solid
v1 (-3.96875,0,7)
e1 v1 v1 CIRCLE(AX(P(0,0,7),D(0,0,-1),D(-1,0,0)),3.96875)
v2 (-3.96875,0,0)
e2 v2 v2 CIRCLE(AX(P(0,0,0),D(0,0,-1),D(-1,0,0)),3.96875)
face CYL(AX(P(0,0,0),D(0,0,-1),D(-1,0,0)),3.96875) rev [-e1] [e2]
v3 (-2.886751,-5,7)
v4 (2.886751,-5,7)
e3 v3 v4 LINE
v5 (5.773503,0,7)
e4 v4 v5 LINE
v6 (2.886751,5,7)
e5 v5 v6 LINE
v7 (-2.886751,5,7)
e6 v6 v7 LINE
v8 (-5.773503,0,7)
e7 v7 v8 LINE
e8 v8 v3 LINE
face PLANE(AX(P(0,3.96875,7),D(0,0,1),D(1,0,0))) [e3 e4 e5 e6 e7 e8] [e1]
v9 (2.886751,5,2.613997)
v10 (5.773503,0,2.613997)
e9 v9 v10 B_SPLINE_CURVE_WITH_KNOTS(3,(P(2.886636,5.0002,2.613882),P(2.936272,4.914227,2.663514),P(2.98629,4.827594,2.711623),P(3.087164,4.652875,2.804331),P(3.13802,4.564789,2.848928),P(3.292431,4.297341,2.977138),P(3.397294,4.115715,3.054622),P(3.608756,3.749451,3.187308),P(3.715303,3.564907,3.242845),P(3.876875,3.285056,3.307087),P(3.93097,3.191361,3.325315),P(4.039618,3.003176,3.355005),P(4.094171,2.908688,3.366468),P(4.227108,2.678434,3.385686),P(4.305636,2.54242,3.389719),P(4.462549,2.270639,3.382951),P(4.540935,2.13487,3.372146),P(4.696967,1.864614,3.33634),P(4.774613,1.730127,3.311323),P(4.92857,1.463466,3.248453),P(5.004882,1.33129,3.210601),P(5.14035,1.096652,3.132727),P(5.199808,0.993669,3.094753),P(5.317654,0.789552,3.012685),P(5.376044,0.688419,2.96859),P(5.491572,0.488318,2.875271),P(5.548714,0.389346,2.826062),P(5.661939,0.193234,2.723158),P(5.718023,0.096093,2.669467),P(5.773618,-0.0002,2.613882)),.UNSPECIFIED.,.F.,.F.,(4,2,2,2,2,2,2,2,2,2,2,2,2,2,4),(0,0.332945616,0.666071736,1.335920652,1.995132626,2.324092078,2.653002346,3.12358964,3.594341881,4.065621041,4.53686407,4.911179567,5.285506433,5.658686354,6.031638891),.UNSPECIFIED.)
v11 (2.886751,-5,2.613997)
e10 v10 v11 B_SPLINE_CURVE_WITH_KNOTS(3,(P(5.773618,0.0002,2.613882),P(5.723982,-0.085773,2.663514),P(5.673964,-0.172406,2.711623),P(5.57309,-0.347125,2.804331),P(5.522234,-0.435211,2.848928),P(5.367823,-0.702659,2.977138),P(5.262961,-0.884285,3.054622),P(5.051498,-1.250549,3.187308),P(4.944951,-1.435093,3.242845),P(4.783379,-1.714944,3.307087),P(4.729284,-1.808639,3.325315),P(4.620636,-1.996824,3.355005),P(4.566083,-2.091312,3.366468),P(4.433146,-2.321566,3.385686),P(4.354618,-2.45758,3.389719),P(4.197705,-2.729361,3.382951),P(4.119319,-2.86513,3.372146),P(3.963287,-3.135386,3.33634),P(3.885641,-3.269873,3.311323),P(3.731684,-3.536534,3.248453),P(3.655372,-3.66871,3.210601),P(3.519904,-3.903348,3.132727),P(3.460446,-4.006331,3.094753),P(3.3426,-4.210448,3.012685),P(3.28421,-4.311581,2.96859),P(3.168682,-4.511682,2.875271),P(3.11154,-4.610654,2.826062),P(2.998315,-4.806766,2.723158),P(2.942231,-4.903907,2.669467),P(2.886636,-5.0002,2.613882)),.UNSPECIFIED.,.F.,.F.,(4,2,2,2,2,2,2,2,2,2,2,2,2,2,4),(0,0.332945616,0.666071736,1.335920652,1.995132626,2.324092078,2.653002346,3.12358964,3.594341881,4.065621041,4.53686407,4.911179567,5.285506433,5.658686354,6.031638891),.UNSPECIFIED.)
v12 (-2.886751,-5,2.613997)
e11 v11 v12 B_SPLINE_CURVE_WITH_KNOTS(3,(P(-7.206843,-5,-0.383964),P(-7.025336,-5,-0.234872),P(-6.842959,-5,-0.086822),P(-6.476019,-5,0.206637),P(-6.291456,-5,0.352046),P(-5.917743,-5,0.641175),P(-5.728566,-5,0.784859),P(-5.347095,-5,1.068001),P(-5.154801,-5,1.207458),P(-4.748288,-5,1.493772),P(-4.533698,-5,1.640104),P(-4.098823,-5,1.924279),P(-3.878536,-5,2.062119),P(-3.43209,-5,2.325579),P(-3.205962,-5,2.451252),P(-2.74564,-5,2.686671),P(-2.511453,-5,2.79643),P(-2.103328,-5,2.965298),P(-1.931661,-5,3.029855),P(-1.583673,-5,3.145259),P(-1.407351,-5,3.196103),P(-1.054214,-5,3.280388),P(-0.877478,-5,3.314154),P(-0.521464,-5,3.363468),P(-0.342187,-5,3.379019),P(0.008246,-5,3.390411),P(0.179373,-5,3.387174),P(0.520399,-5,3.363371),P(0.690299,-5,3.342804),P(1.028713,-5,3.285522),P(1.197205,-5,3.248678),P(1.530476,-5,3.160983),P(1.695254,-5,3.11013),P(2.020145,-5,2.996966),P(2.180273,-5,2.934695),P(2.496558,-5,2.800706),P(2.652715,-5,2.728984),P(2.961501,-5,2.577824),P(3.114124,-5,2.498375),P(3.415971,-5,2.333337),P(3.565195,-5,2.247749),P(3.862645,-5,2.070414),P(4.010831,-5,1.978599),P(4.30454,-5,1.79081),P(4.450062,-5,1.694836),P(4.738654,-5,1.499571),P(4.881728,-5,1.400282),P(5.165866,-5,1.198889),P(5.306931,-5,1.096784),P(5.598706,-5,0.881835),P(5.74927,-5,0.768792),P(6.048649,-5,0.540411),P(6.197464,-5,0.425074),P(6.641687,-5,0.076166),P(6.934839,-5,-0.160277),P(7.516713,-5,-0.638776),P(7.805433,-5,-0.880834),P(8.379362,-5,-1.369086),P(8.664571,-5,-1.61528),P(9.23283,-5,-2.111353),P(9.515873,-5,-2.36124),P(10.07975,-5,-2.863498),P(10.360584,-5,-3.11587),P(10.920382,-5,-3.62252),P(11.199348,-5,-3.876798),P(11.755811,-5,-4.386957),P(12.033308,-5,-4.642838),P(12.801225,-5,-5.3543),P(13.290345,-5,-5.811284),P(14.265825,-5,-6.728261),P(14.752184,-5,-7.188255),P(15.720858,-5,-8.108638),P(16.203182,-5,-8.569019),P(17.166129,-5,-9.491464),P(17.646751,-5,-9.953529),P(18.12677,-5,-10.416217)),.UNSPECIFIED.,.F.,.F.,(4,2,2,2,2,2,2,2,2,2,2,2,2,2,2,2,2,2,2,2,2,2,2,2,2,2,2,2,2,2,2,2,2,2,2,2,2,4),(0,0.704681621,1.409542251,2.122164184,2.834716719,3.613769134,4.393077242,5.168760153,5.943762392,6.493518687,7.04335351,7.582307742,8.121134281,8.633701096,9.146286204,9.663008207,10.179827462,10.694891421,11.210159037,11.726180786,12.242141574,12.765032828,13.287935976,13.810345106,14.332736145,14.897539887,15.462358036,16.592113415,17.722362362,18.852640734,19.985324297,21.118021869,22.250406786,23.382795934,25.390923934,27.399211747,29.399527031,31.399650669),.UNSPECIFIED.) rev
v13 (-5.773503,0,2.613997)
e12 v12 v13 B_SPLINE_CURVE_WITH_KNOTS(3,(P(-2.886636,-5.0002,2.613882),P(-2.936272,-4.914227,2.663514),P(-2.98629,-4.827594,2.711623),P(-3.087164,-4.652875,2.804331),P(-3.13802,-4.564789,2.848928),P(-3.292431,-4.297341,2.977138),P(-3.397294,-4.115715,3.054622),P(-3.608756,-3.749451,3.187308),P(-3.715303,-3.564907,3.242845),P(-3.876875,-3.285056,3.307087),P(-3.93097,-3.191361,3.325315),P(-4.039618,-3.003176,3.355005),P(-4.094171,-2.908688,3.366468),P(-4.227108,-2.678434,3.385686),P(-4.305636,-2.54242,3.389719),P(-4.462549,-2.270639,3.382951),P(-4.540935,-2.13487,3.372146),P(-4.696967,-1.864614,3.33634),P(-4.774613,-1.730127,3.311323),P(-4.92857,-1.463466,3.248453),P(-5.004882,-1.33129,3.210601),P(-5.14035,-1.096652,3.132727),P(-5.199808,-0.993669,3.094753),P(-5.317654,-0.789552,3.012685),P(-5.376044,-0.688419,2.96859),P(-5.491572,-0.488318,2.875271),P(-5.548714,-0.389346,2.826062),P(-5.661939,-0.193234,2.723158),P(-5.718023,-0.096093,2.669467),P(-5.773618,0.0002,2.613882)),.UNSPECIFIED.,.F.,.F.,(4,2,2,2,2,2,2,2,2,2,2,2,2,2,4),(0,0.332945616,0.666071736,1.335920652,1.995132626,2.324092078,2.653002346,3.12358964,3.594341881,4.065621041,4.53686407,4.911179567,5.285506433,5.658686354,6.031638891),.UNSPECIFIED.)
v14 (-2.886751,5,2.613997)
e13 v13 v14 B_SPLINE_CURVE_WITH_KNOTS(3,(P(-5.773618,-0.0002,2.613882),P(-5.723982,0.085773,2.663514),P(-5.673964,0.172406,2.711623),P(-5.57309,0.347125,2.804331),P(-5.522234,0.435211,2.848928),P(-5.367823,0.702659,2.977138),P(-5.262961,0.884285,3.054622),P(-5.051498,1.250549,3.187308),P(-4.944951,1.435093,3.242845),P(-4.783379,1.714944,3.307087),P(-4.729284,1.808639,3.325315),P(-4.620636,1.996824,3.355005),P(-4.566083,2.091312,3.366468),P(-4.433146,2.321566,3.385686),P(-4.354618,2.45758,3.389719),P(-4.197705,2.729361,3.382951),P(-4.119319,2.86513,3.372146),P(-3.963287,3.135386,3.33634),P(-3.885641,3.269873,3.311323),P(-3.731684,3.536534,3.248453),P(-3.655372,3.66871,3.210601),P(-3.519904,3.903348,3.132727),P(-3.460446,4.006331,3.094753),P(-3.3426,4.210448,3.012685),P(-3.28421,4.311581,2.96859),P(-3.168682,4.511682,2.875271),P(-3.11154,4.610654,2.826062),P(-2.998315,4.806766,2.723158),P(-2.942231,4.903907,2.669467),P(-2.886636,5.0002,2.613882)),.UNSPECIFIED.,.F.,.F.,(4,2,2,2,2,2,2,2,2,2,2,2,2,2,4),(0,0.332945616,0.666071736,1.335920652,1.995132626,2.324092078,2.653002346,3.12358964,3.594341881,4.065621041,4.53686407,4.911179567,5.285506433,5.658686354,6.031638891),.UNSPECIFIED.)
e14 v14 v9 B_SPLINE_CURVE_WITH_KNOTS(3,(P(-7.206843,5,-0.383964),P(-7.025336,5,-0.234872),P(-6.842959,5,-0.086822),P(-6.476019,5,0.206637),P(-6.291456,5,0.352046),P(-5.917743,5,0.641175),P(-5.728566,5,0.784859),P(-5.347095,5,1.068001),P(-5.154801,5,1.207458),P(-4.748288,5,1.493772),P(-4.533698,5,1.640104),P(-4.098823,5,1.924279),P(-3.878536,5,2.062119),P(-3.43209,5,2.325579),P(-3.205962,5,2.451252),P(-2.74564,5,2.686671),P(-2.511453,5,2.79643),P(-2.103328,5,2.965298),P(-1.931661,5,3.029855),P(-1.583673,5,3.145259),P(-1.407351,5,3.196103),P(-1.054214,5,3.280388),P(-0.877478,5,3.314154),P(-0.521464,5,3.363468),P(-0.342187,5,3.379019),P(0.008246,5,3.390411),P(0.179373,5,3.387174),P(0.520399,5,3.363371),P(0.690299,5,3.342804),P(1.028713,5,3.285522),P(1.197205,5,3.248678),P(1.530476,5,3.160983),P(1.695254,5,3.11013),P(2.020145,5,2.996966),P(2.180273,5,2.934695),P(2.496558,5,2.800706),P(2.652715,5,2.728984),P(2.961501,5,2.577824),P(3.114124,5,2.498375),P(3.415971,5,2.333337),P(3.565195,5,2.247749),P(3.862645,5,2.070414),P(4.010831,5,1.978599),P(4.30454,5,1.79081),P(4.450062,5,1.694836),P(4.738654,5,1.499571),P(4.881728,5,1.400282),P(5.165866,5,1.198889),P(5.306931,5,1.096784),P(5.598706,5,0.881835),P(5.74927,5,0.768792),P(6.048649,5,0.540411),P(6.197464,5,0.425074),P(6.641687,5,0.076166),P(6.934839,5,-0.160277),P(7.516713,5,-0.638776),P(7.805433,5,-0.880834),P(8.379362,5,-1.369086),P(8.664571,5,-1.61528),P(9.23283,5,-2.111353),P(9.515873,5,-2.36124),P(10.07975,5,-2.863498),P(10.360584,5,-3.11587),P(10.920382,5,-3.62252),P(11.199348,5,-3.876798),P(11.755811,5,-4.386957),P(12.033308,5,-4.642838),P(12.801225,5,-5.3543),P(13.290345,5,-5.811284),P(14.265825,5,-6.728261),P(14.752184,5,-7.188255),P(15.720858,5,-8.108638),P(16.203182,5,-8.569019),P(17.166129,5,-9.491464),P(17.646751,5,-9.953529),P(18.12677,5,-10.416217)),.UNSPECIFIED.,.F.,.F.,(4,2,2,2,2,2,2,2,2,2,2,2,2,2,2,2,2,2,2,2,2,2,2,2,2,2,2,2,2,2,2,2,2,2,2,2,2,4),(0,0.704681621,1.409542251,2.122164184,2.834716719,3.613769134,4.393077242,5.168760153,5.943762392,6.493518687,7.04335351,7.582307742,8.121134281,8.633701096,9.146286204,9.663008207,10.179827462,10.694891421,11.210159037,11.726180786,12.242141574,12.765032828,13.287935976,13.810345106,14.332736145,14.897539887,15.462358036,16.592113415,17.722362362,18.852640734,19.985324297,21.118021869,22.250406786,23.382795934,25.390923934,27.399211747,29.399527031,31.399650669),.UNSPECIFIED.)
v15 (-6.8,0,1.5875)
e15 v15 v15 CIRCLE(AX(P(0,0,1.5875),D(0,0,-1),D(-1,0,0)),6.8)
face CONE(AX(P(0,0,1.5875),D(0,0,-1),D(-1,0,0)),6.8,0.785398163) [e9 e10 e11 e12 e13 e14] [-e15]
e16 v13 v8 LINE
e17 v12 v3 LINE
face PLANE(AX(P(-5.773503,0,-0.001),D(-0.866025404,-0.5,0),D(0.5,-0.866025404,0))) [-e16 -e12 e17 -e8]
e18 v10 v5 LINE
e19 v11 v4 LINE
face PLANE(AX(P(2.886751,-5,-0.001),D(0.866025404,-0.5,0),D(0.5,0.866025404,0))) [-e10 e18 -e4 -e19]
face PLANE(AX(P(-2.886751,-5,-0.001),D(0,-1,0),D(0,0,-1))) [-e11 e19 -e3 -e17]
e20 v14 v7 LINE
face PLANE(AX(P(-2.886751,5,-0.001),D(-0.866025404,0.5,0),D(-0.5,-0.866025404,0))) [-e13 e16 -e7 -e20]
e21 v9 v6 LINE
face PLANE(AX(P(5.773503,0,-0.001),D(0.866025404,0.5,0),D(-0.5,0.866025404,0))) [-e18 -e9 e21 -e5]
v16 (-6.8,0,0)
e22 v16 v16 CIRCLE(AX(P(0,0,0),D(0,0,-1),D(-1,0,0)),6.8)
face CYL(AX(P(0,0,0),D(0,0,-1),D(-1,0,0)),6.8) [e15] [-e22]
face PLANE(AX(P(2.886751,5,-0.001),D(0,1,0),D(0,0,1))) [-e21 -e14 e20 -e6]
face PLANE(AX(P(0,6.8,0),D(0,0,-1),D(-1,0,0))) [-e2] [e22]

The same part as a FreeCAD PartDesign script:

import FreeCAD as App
import Part
import Sketcher
Q = App.Units.Quantity


def add_polygon(sketch, points):
    """Adds a closed chain of lines whose ends are joined by coincident constraints."""
    first, n = sketch.GeometryCount, len(points)
    for a, b in zip(points, points[1:] + points[:1]):
        sketch.addGeometry(Part.LineSegment(App.Vector(*a, 0), App.Vector(*b, 0)), False)
    for i in range(n):
        sketch.addConstraint(Sketcher.Constraint("Coincident", first + i, 2, first + (i + 1) % n, 1))

doc = App.newDocument("Part")
body = doc.addObject("PartDesign::Body", "Body")

sketch1 = doc.addObject("Sketcher::SketchObject", "Sketch")
body.addObject(sketch1)
sketch1.AttachmentSupport = (doc.YZ_Plane, [""])
sketch1.MapMode = "FlatFace"
add_polygon(sketch1, [(3.96875, 7), (3.96875, 0), (6.8, 0), (6.8, 1.5875), (4.7625, 3.625), (4.7625, 7)])
sketch1.addConstraint([
    Sketcher.Constraint("Vertical", 0),
    Sketcher.Constraint("Horizontal", 1),
    Sketcher.Constraint("Vertical", 2),
    Sketcher.Constraint("Vertical", 4),
    Sketcher.Constraint("Horizontal", 5),
    Sketcher.Constraint("PointOnObject", 0, 2, -1),
    Sketcher.Constraint("Angle", 3, Q("135 deg")),
    Sketcher.Constraint("DistanceX", 5, 2, 5, 1, Q("0.03125 in")),
    Sketcher.Constraint("DistanceY", 2, 1, 2, 2, Q("0.0625 in")),
    Sketcher.Constraint("DistanceX", -1, 1, 0, 2, Q("0.15625 in")),
    Sketcher.Constraint("DistanceY", 0, 2, 0, 1, 7.0),
    Sketcher.Constraint("DistanceY", 4, 1, 4, 2, 3.375),
])
revolution = doc.addObject("PartDesign::Revolution", "Revolution")
body.addObject(revolution)
revolution.Profile = sketch1
revolution.ReferenceAxis = (sketch1, ["V_Axis"])
revolution.Angle = 360

sketch2 = doc.addObject("Sketcher::SketchObject", "Sketch001")
body.addObject(sketch2)
sketch2.AttachmentSupport = (doc.XY_Plane, [""])
sketch2.MapMode = "FlatFace"
sketch2.AttachmentOffset = App.Placement(App.Vector(0, 0, 7), App.Rotation())
add_polygon(sketch2, [(-2.886751, 5), (-5.773503, 0), (-2.886751, -5), (2.886751, -5), (5.773503, 0), (2.886751, 5)])
sketch2.addGeometry(Part.Circle(App.Vector(0, 0, 0), App.Vector(0, 0, 1), 3.96875), False)
sketch2.addConstraint([
    Sketcher.Constraint("Horizontal", 2),
    Sketcher.Constraint("Horizontal", 5),
    Sketcher.Constraint("Coincident", 6, 3, -1, 1),
    Sketcher.Constraint("Symmetric", 0, 2, 3, 2, -1, 1),
    Sketcher.Constraint("Symmetric", 1, 2, 4, 2, -1, 1),
    Sketcher.Constraint("PointOnObject", 0, 2, -1),
    Sketcher.Constraint("Parallel", 0, 3),
    Sketcher.Constraint("Vertical", 2, 2, 4, 2),
    Sketcher.Constraint("Diameter", 6, Q("0.3125 in")),
    Sketcher.Constraint("Angle", 0, Q("-120 deg")),
    Sketcher.Constraint("DistanceY", 1, 2, -1, 1, 5.0),
    Sketcher.Constraint("DistanceX", 2, 1, 2, 2, 5.773503),
])
pad1 = doc.addObject("PartDesign::Pad", "Pad")
body.addObject(pad1)
pad1.Profile = sketch2
pad1.Length = 4.386003
pad1.Reversed = True

doc.recompute()
